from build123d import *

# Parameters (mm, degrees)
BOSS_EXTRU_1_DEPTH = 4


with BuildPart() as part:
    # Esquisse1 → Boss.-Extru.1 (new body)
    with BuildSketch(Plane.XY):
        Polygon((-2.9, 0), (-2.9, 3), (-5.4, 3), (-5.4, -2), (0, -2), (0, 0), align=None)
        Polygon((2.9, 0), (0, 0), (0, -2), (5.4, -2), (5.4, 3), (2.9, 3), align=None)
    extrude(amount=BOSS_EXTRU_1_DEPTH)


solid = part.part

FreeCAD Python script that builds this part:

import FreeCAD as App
import Part
import Sketcher
from FreeCAD import Vector
Q = App.Units.Quantity

doc = App.newDocument("Part")
body = doc.addObject("PartDesign::Body", "Body")

# Sketch on XY plane
sketch1 = doc.addObject("Sketcher::SketchObject", "Sketch")
body.addObject(sketch1)
sketch1.AttachmentSupport = (doc.XY_Plane, [""])
sketch1.MapMode = "FlatFace"
sketch1.addGeometry([
    Part.LineSegment(Vector(-2.9, 0, 0), Vector(-2.9, 3, 0)),  # 0
    Part.LineSegment(Vector(-2.9, 3, 0), Vector(-5.4, 3, 0)),  # 1
    Part.LineSegment(Vector(-5.4, 3, 0), Vector(-5.4, -2, 0)),  # 2
    Part.LineSegment(Vector(-5.4, -2, 0), Vector(5.4, -2, 0)),  # 3
    Part.LineSegment(Vector(5.4, -2, 0), Vector(5.4, 3, 0)),  # 4
    Part.LineSegment(Vector(5.4, 3, 0), Vector(2.9, 3, 0)),  # 5
    Part.LineSegment(Vector(2.9, 3, 0), Vector(2.9, 0, 0)),  # 6
    Part.LineSegment(Vector(2.9, 0, 0), Vector(-2.9, 0, 0)),  # 7
], False)
sketch1.addConstraint([
    Sketcher.Constraint("Coincident", 0, 2, 1, 1),
    Sketcher.Constraint("Coincident", 1, 2, 2, 1),
    Sketcher.Constraint("Coincident", 2, 2, 3, 1),
    Sketcher.Constraint("Coincident", 3, 2, 4, 1),
    Sketcher.Constraint("Coincident", 4, 2, 5, 1),
    Sketcher.Constraint("Coincident", 5, 2, 6, 1),
    Sketcher.Constraint("Coincident", 6, 2, 7, 1),
    Sketcher.Constraint("Coincident", 7, 2, 0, 1),
    Sketcher.Constraint("Vertical", 0),
    Sketcher.Constraint("Horizontal", 1),
    Sketcher.Constraint("Vertical", 2),
    Sketcher.Constraint("Horizontal", 3),
    Sketcher.Constraint("Vertical", 4),
    Sketcher.Constraint("Horizontal", 5),
    Sketcher.Constraint("Vertical", 6),
    Sketcher.Constraint("Horizontal", 7),
    Sketcher.Constraint("Symmetric", 6, 2, 7, 2, -1, 1),
    Sketcher.Constraint("Symmetric", 1, 2, 4, 2, -2),
    Sketcher.Constraint("DistanceY", 0, 1, 0, 2, Q("3 mm")),
    Sketcher.Constraint("DistanceY", 2, 2, 2, 1, Q("5 mm")),
    Sketcher.Constraint("DistanceX", 1, 2, 1, 1, Q("2.5 mm")),
    Sketcher.Constraint("DistanceX", 3, 1, 3, 2, Q("10.8 mm")),
])
pad1 = doc.addObject("PartDesign::Pad", "Pad")
body.addObject(pad1)
pad1.Profile = sketch1
pad1.Length = 4

doc.recompute()
